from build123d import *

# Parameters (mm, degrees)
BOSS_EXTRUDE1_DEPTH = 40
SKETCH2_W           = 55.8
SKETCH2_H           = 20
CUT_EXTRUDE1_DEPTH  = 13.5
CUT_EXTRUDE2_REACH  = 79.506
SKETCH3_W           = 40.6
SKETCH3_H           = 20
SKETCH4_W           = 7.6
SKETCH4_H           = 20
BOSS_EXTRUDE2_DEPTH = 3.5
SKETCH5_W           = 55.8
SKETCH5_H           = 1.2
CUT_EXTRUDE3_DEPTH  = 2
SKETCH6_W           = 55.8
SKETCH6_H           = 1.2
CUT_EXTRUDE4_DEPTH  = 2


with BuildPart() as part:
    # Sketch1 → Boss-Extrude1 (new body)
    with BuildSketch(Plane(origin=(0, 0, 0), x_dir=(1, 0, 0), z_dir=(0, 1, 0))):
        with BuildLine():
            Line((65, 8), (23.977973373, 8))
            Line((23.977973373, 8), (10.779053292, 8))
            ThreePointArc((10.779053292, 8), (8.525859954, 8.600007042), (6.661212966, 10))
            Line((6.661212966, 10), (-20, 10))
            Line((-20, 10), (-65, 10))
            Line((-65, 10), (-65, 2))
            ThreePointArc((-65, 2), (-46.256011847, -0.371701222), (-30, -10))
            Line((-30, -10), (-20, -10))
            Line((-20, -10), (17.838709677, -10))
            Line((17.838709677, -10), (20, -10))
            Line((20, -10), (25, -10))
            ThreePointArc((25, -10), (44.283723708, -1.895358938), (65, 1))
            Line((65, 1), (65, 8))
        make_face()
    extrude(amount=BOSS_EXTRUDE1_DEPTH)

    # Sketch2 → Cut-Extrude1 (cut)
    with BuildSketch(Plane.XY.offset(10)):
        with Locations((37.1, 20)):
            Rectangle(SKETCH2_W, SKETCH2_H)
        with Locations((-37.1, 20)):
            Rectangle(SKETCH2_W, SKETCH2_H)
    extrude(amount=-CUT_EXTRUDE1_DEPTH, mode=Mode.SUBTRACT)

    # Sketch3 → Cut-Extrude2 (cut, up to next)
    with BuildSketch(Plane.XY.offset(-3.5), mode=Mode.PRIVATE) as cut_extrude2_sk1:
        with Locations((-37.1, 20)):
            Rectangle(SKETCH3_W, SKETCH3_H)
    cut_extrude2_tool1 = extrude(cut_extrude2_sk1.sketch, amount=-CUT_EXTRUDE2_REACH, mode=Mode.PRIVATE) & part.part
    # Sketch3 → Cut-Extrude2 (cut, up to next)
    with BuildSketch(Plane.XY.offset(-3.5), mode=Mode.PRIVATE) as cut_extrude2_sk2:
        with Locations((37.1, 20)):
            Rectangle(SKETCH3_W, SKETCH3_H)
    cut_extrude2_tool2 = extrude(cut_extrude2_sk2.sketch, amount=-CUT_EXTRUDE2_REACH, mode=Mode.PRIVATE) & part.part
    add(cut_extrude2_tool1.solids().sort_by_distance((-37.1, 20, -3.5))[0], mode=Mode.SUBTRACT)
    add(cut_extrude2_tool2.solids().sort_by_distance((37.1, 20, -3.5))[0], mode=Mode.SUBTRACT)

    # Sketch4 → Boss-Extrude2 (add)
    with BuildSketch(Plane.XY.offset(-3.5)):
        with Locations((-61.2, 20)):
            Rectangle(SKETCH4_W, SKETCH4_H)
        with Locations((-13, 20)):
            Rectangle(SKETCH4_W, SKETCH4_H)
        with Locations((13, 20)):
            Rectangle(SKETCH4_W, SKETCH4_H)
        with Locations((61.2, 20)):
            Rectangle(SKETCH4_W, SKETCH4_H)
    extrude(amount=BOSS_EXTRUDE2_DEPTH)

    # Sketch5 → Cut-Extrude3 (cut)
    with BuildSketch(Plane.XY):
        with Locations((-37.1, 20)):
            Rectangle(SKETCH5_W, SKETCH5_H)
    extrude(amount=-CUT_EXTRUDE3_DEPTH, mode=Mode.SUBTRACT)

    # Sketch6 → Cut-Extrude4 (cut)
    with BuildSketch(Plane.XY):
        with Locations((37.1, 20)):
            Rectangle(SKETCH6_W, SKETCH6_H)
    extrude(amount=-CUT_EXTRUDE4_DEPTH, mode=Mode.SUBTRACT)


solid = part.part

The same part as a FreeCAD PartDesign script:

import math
import FreeCAD as App
import Part
import Sketcher
Q = App.Units.Quantity


def add_polygon(sketch, points):
    """Adds a closed chain of lines whose ends are joined by coincident constraints."""
    first, n = sketch.GeometryCount, len(points)
    for a, b in zip(points, points[1:] + points[:1]):
        sketch.addGeometry(Part.LineSegment(App.Vector(*a, 0), App.Vector(*b, 0)), False)
    for i in range(n):
        sketch.addConstraint(Sketcher.Constraint("Coincident", first + i, 2, first + (i + 1) % n, 1))

doc = App.newDocument("Part")
body = doc.addObject("PartDesign::Body", "Body")

# Sketch on XZ plane
sketch1 = doc.addObject("Sketcher::SketchObject", "Sketch")
body.addObject(sketch1)
sketch1.AttachmentSupport = (doc.XZ_Plane, [""])
sketch1.MapMode = "FlatFace"
sketch1.addGeometry([
    Part.LineSegment(App.Vector(65, -8, 0), App.Vector(10.8, -8, 0)),  # 0
    Part.ArcOfCircle(Part.Circle(App.Vector(11.2, -14.1, 0), App.Vector(0, 0, 1), 6.1), math.radians(94), math.radians(138)),  # 1
    Part.LineSegment(App.Vector(6.7, -10, 0), App.Vector(-65, -10, 0)),  # 2
    Part.LineSegment(App.Vector(-65, -10, 0), App.Vector(-65, -2, 0)),  # 3
    Part.ArcOfCircle(Part.Circle(App.Vector(-61.3, 44.4, 0), App.Vector(0, 0, 1), 46.5), math.radians(-95), math.radians(-48)),  # 4
    Part.LineSegment(App.Vector(-30, 10, 0), App.Vector(25, 10, 0)),  # 5
    Part.ArcOfCircle(Part.Circle(App.Vector(65.8, 80, 0), App.Vector(0, 0, 1), 81), math.radians(-120), math.radians(-91)),  # 6
    Part.LineSegment(App.Vector(65, -1, 0), App.Vector(65, -8, 0)),  # 7
], False)
sketch1.addConstraint([
    Sketcher.Constraint("Coincident", 0, 2, 1, 1),
    Sketcher.Constraint("Coincident", 1, 2, 2, 1),
    Sketcher.Constraint("Coincident", 2, 2, 3, 1),
    Sketcher.Constraint("Coincident", 3, 2, 4, 1),
    Sketcher.Constraint("Coincident", 4, 2, 5, 1),
    Sketcher.Constraint("Coincident", 5, 2, 6, 1),
    Sketcher.Constraint("Coincident", 6, 2, 7, 1),
    Sketcher.Constraint("Coincident", 7, 2, 0, 1),
    Sketcher.Constraint("Horizontal", 0),
    Sketcher.Constraint("Horizontal", 2),
    Sketcher.Constraint("Vertical", 3),
    Sketcher.Constraint("Horizontal", 5),
    Sketcher.Constraint("Vertical", 7),
    Sketcher.Constraint("DistanceX", 5, 1, 5, 2, Q("55 mm")),
    Sketcher.Constraint("DistanceY", 3, 1, 3, 2, Q("8 mm")),
    Sketcher.Constraint("DistanceY", 7, 2, 7, 1, Q("7 mm")),
    Sketcher.Constraint("DistanceY", 0, 2, -1, 1, Q("8 mm")),
    Sketcher.Constraint("DistanceY", 1, 2, -1, 1, Q("10 mm")),
    Sketcher.Constraint("DistanceX", 2, 2, -1, 1, Q("65 mm")),
    Sketcher.Constraint("DistanceX", 4, 2, -1, 1, Q("30 mm")),
    Sketcher.Constraint("DistanceY", -1, 1, 4, 2, Q("10 mm")),
    Sketcher.Constraint("DistanceX", -1, 1, 6, 2, Q("65 mm")),
    Sketcher.Constraint("Radius", 1, Q("6.11332 mm")),
    Sketcher.Constraint("Radius", 6, Q("80.987239 mm")),
    Sketcher.Constraint("Radius", 4, Q("46.532388 mm")),
    Sketcher.Constraint("DistanceX", 0, 2, 0, 1, Q("54.220947 mm")),
    Sketcher.Constraint("DistanceX", 2, 2, 2, 1, Q("71.661213 mm")),
])
pad1 = doc.addObject("PartDesign::Pad", "Pad")
body.addObject(pad1)
pad1.Profile = sketch1
pad1.Length = 40
pad1.Reversed = True

# Sketch on XY plane
sketch2 = doc.addObject("Sketcher::SketchObject", "Sketch001")
body.addObject(sketch2)
sketch2.AttachmentSupport = (doc.XY_Plane, [""])
sketch2.MapMode = "FlatFace"
sketch2.AttachmentOffset = App.Placement(App.Vector(0, 0, 10), App.Rotation())
add_polygon(sketch2, [(9, 30), (9, 10), (65, 10), (65, 30)])  # lines 0-3
add_polygon(sketch2, [(-65, 30), (-65, 10), (-9, 10), (-9, 30)])  # lines 4-7
sketch2.addConstraint([
    Sketcher.Constraint("Vertical", 0),
    Sketcher.Constraint("Horizontal", 1),
    Sketcher.Constraint("Vertical", 2),
    Sketcher.Constraint("Horizontal", 3),
    Sketcher.Constraint("Vertical", 4),
    Sketcher.Constraint("Horizontal", 5),
    Sketcher.Constraint("Vertical", 6),
    Sketcher.Constraint("Horizontal", 7),
    Sketcher.Constraint("Symmetric", 1, 2, 4, 2, -2),
    Sketcher.Constraint("Symmetric", 3, 2, 6, 2, -2),
    Sketcher.Constraint("DistanceY", 0, 2, 0, 1, Q("20 mm")),
    Sketcher.Constraint("DistanceX", 1, 1, 1, 2, Q("55.8 mm")),
    Sketcher.Constraint("DistanceY", -1, 1, 0, 2, Q("10 mm")),
    Sketcher.Constraint("DistanceX", -1, 1, 1, 2, Q("65 mm")),
])
pocket1 = doc.addObject("PartDesign::Pocket", "Pocket")
body.addObject(pocket1)
pocket1.Profile = sketch2
pocket1.Length = 13.5

# Sketch on XY plane
sketch3 = doc.addObject("Sketcher::SketchObject", "Sketch002")
body.addObject(sketch3)
sketch3.AttachmentSupport = (doc.XY_Plane, [""])
sketch3.MapMode = "FlatFace"
sketch3.AttachmentOffset = App.Placement(App.Vector(0, 0, -3.5), App.Rotation())
add_polygon(sketch3, [(-57, 30), (-57, 10), (-17, 10), (-17, 30)])  # lines 0-3
sketch3.addConstraint([
    Sketcher.Constraint("Vertical", 0),
    Sketcher.Constraint("Horizontal", 1),
    Sketcher.Constraint("Vertical", 2),
    Sketcher.Constraint("Horizontal", 3),
    Sketcher.Constraint("DistanceY", 0, 2, 0, 1, Q("20 mm")),
    Sketcher.Constraint("DistanceX", 1, 1, 1, 2, Q("40.6 mm")),
    Sketcher.Constraint("DistanceY", -1, 1, 0, 2, Q("10 mm")),
    Sketcher.Constraint("DistanceX", 0, 2, -1, 1, Q("57.4 mm")),
])
pocket2 = doc.addObject("PartDesign::Pocket", "Pocket001")
body.addObject(pocket2)
pocket2.Profile = sketch3
pocket2.Type = "UpToFirst"

# Sketch on XY plane
sketch4 = doc.addObject("Sketcher::SketchObject", "Sketch003")
body.addObject(sketch4)
sketch4.AttachmentSupport = (doc.XY_Plane, [""])
sketch4.MapMode = "FlatFace"
sketch4.AttachmentOffset = App.Placement(App.Vector(0, 0, -3.5), App.Rotation())
add_polygon(sketch4, [(17, 30), (17, 10), (57, 10), (57, 30)])  # lines 0-3
sketch4.addConstraint([
    Sketcher.Constraint("Vertical", 0),
    Sketcher.Constraint("Horizontal", 1),
    Sketcher.Constraint("Vertical", 2),
    Sketcher.Constraint("Horizontal", 3),
    Sketcher.Constraint("DistanceY", 0, 2, 0, 1, Q("20 mm")),
    Sketcher.Constraint("DistanceX", 1, 1, 1, 2, Q("40.6 mm")),
    Sketcher.Constraint("DistanceY", -1, 1, 0, 2, Q("10 mm")),
    Sketcher.Constraint("DistanceX", -1, 1, 0, 2, Q("16.8 mm")),
])
pocket3 = doc.addObject("PartDesign::Pocket", "Pocket002")
body.addObject(pocket3)
pocket3.Profile = sketch4
pocket3.Type = "UpToFirst"

# Sketch on XY plane
sketch5 = doc.addObject("Sketcher::SketchObject", "Sketch004")
body.addObject(sketch5)
sketch5.AttachmentSupport = (doc.XY_Plane, [""])
sketch5.MapMode = "FlatFace"
sketch5.AttachmentOffset = App.Placement(App.Vector(0, 0, -3.5), App.Rotation())
add_polygon(sketch5, [(-65, 30), (-65, 10), (-57, 10), (-57, 30)])  # lines 0-3
add_polygon(sketch5, [(-17, 30), (-17, 10), (-9, 10), (-9, 30)])  # lines 4-7
add_polygon(sketch5, [(9, 30), (9, 10), (17, 10), (17, 30)])  # lines 8-11
add_polygon(sketch5, [(57, 30), (57, 10), (65, 10), (65, 30)])  # lines 12-15
sketch5.addConstraint([
    Sketcher.Constraint("Vertical", 0),
    Sketcher.Constraint("Horizontal", 1),
    Sketcher.Constraint("Vertical", 2),
    Sketcher.Constraint("Horizontal", 3),
    Sketcher.Constraint("Vertical", 4),
    Sketcher.Constraint("Horizontal", 5),
    Sketcher.Constraint("Vertical", 6),
    Sketcher.Constraint("Horizontal", 7),
    Sketcher.Constraint("Vertical", 8),
    Sketcher.Constraint("Horizontal", 9),
    Sketcher.Constraint("Vertical", 10),
    Sketcher.Constraint("Horizontal", 11),
    Sketcher.Constraint("Vertical", 12),
    Sketcher.Constraint("Horizontal", 13),
    Sketcher.Constraint("Vertical", 14),
    Sketcher.Constraint("Horizontal", 15),
    Sketcher.Constraint("Symmetric", 5, 2, 8, 2, -2),
    Sketcher.Constraint("Symmetric", 7, 2, 10, 2, -2),
    Sketcher.Constraint("Symmetric", 1, 2, 12, 2, -2),
    Sketcher.Constraint("Symmetric", 3, 2, 14, 2, -2),
    Sketcher.Constraint("Horizontal", 1, 2, 4, 2),
    Sketcher.Constraint("Horizontal", 3, 2, 6, 2),
    Sketcher.Constraint("Equal", 3, 5),
    Sketcher.Constraint("DistanceY", 0, 2, 0, 1, Q("20 mm")),
    Sketcher.Constraint("DistanceX", 1, 1, 1, 2, Q("7.6 mm")),
    Sketcher.Constraint("DistanceX", 0, 2, -1, 1, Q("65 mm")),
    Sketcher.Constraint("DistanceY", -1, 1, 0, 2, Q("10 mm")),
    Sketcher.Constraint("DistanceX", 4, 2, 8, 2, Q("26 mm")),
])
pad2 = doc.addObject("PartDesign::Pad", "Pad001")
body.addObject(pad2)
pad2.Profile = sketch5
pad2.Length = 3.5

# Sketch on XY plane
sketch6 = doc.addObject("Sketcher::SketchObject", "Sketch005")
body.addObject(sketch6)
sketch6.AttachmentSupport = (doc.XY_Plane, [""])
sketch6.MapMode = "FlatFace"
add_polygon(sketch6, [(-65, 20.6), (-65, 19.4), (-9.2, 19.4), (-9.2, 20.6)])  # lines 0-3
sketch6.addConstraint([
    Sketcher.Constraint("Vertical", 0),
    Sketcher.Constraint("Horizontal", 1),
    Sketcher.Constraint("Vertical", 2),
    Sketcher.Constraint("Horizontal", 3),
    Sketcher.Constraint("DistanceX", 1, 1, 1, 2, Q("55.8 mm")),
    Sketcher.Constraint("DistanceY", 0, 2, 0, 1, Q("1.2 mm")),
    Sketcher.Constraint("DistanceX", 0, 2, -1, 1, Q("65 mm")),
    Sketcher.Constraint("DistanceY", -1, 1, 0, 2, Q("19.4 mm")),
])
pocket4 = doc.addObject("PartDesign::Pocket", "Pocket003")
body.addObject(pocket4)
pocket4.Profile = sketch6
pocket4.Length = 2

# Sketch on XY plane
sketch7 = doc.addObject("Sketcher::SketchObject", "Sketch006")
body.addObject(sketch7)
sketch7.AttachmentSupport = (doc.XY_Plane, [""])
sketch7.MapMode = "FlatFace"
add_polygon(sketch7, [(9.2, 20.6), (9.2, 19.4), (65, 19.4), (65, 20.6)])  # lines 0-3
sketch7.addConstraint([
    Sketcher.Constraint("Vertical", 0),
    Sketcher.Constraint("Horizontal", 1),
    Sketcher.Constraint("Vertical", 2),
    Sketcher.Constraint("Horizontal", 3),
    Sketcher.Constraint("DistanceX", 1, 1, 1, 2, Q("55.8 mm")),
    Sketcher.Constraint("DistanceY", 0, 2, 0, 1, Q("1.2 mm")),
    Sketcher.Constraint("DistanceX", -1, 1, 1, 2, Q("65 mm")),
    Sketcher.Constraint("DistanceY", -1, 1, 0, 2, Q("19.4 mm")),
])
pocket5 = doc.addObject("PartDesign::Pocket", "Pocket004")
body.addObject(pocket5)
pocket5.Profile = sketch7
pocket5.Length = 2

doc.recompute()
